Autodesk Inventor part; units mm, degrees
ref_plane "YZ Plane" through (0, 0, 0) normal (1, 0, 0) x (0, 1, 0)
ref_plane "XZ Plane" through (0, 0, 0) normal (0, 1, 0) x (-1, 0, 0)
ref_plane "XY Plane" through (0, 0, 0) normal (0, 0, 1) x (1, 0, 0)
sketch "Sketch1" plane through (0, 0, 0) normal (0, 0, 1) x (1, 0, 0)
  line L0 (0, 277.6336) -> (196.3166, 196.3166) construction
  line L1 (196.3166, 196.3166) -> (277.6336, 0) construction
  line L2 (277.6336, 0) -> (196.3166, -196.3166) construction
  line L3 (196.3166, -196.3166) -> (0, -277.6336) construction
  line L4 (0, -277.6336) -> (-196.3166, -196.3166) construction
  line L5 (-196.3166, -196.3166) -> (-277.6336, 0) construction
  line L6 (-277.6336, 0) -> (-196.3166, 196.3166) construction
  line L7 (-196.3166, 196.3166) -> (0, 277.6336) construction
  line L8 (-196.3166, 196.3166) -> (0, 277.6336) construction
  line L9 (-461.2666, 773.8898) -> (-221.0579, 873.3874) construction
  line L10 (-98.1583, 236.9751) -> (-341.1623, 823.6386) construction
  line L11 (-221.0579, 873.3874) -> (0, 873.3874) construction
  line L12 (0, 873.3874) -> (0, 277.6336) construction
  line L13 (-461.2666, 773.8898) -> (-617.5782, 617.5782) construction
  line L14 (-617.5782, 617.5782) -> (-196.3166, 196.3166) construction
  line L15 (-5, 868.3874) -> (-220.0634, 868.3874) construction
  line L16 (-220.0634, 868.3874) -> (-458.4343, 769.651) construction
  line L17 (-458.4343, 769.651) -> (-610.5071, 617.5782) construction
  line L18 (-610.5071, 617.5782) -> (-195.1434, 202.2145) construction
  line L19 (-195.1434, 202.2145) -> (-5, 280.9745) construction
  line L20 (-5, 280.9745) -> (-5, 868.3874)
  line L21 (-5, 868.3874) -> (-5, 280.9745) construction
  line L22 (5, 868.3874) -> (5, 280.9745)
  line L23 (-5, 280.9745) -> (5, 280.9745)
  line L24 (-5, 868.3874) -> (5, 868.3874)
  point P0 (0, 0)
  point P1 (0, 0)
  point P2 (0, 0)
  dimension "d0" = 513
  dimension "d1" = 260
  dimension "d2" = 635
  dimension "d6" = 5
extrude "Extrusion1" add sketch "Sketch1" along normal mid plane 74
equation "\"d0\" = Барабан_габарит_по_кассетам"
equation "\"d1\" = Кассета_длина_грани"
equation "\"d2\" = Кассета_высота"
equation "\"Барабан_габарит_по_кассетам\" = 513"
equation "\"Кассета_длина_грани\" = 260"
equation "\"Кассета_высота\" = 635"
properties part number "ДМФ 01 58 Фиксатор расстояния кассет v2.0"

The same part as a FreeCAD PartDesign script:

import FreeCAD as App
import Part
import Sketcher
from FreeCAD import Vector

doc = App.newDocument("Part")
body = doc.addObject("PartDesign::Body", "Body")

# Sketch on XY plane
sketch1 = body.newObject("Sketcher::SketchObject", "Sketch")
sketch1.AttachmentSupport = (doc.getObject("XY_Plane"), [""])
sketch1.MapMode = "FlatFace"
sketch1.addGeometry([
    Part.LineSegment(Vector(-5, 868, 0), Vector(-5, 281, 0)),
    Part.LineSegment(Vector(-5, 281, 0), Vector(5, 281, 0)),
    Part.LineSegment(Vector(5, 281, 0), Vector(5, 868, 0)),
    Part.LineSegment(Vector(5, 868, 0), Vector(-5, 868, 0)),
], False)
sketch1.addConstraint([
    Sketcher.Constraint("Coincident", 0, 2, 1, 1),
    Sketcher.Constraint("Coincident", 1, 2, 2, 1),
    Sketcher.Constraint("Coincident", 2, 2, 3, 1),
    Sketcher.Constraint("Coincident", 3, 2, 0, 1),
    Sketcher.Constraint("Vertical", 0),
    Sketcher.Constraint("Horizontal", 1),
    Sketcher.Constraint("Vertical", 2),
    Sketcher.Constraint("Horizontal", 3),
    Sketcher.Constraint("DistanceX", 0, 2, -1, 1, 5.0),
    Sketcher.Constraint("DistanceX", -1, 1, 1, 2, 5.0),
    Sketcher.Constraint("DistanceY", 0, 2, 0, 1, 587.413),
    Sketcher.Constraint("DistanceY", -1, 1, 0, 2, 280.9745),
])
pad1 = body.newObject("PartDesign::Pad", "Pad")
pad1.Profile = sketch1
pad1.Length = 74
pad1.Midplane = True

doc.recompute()
